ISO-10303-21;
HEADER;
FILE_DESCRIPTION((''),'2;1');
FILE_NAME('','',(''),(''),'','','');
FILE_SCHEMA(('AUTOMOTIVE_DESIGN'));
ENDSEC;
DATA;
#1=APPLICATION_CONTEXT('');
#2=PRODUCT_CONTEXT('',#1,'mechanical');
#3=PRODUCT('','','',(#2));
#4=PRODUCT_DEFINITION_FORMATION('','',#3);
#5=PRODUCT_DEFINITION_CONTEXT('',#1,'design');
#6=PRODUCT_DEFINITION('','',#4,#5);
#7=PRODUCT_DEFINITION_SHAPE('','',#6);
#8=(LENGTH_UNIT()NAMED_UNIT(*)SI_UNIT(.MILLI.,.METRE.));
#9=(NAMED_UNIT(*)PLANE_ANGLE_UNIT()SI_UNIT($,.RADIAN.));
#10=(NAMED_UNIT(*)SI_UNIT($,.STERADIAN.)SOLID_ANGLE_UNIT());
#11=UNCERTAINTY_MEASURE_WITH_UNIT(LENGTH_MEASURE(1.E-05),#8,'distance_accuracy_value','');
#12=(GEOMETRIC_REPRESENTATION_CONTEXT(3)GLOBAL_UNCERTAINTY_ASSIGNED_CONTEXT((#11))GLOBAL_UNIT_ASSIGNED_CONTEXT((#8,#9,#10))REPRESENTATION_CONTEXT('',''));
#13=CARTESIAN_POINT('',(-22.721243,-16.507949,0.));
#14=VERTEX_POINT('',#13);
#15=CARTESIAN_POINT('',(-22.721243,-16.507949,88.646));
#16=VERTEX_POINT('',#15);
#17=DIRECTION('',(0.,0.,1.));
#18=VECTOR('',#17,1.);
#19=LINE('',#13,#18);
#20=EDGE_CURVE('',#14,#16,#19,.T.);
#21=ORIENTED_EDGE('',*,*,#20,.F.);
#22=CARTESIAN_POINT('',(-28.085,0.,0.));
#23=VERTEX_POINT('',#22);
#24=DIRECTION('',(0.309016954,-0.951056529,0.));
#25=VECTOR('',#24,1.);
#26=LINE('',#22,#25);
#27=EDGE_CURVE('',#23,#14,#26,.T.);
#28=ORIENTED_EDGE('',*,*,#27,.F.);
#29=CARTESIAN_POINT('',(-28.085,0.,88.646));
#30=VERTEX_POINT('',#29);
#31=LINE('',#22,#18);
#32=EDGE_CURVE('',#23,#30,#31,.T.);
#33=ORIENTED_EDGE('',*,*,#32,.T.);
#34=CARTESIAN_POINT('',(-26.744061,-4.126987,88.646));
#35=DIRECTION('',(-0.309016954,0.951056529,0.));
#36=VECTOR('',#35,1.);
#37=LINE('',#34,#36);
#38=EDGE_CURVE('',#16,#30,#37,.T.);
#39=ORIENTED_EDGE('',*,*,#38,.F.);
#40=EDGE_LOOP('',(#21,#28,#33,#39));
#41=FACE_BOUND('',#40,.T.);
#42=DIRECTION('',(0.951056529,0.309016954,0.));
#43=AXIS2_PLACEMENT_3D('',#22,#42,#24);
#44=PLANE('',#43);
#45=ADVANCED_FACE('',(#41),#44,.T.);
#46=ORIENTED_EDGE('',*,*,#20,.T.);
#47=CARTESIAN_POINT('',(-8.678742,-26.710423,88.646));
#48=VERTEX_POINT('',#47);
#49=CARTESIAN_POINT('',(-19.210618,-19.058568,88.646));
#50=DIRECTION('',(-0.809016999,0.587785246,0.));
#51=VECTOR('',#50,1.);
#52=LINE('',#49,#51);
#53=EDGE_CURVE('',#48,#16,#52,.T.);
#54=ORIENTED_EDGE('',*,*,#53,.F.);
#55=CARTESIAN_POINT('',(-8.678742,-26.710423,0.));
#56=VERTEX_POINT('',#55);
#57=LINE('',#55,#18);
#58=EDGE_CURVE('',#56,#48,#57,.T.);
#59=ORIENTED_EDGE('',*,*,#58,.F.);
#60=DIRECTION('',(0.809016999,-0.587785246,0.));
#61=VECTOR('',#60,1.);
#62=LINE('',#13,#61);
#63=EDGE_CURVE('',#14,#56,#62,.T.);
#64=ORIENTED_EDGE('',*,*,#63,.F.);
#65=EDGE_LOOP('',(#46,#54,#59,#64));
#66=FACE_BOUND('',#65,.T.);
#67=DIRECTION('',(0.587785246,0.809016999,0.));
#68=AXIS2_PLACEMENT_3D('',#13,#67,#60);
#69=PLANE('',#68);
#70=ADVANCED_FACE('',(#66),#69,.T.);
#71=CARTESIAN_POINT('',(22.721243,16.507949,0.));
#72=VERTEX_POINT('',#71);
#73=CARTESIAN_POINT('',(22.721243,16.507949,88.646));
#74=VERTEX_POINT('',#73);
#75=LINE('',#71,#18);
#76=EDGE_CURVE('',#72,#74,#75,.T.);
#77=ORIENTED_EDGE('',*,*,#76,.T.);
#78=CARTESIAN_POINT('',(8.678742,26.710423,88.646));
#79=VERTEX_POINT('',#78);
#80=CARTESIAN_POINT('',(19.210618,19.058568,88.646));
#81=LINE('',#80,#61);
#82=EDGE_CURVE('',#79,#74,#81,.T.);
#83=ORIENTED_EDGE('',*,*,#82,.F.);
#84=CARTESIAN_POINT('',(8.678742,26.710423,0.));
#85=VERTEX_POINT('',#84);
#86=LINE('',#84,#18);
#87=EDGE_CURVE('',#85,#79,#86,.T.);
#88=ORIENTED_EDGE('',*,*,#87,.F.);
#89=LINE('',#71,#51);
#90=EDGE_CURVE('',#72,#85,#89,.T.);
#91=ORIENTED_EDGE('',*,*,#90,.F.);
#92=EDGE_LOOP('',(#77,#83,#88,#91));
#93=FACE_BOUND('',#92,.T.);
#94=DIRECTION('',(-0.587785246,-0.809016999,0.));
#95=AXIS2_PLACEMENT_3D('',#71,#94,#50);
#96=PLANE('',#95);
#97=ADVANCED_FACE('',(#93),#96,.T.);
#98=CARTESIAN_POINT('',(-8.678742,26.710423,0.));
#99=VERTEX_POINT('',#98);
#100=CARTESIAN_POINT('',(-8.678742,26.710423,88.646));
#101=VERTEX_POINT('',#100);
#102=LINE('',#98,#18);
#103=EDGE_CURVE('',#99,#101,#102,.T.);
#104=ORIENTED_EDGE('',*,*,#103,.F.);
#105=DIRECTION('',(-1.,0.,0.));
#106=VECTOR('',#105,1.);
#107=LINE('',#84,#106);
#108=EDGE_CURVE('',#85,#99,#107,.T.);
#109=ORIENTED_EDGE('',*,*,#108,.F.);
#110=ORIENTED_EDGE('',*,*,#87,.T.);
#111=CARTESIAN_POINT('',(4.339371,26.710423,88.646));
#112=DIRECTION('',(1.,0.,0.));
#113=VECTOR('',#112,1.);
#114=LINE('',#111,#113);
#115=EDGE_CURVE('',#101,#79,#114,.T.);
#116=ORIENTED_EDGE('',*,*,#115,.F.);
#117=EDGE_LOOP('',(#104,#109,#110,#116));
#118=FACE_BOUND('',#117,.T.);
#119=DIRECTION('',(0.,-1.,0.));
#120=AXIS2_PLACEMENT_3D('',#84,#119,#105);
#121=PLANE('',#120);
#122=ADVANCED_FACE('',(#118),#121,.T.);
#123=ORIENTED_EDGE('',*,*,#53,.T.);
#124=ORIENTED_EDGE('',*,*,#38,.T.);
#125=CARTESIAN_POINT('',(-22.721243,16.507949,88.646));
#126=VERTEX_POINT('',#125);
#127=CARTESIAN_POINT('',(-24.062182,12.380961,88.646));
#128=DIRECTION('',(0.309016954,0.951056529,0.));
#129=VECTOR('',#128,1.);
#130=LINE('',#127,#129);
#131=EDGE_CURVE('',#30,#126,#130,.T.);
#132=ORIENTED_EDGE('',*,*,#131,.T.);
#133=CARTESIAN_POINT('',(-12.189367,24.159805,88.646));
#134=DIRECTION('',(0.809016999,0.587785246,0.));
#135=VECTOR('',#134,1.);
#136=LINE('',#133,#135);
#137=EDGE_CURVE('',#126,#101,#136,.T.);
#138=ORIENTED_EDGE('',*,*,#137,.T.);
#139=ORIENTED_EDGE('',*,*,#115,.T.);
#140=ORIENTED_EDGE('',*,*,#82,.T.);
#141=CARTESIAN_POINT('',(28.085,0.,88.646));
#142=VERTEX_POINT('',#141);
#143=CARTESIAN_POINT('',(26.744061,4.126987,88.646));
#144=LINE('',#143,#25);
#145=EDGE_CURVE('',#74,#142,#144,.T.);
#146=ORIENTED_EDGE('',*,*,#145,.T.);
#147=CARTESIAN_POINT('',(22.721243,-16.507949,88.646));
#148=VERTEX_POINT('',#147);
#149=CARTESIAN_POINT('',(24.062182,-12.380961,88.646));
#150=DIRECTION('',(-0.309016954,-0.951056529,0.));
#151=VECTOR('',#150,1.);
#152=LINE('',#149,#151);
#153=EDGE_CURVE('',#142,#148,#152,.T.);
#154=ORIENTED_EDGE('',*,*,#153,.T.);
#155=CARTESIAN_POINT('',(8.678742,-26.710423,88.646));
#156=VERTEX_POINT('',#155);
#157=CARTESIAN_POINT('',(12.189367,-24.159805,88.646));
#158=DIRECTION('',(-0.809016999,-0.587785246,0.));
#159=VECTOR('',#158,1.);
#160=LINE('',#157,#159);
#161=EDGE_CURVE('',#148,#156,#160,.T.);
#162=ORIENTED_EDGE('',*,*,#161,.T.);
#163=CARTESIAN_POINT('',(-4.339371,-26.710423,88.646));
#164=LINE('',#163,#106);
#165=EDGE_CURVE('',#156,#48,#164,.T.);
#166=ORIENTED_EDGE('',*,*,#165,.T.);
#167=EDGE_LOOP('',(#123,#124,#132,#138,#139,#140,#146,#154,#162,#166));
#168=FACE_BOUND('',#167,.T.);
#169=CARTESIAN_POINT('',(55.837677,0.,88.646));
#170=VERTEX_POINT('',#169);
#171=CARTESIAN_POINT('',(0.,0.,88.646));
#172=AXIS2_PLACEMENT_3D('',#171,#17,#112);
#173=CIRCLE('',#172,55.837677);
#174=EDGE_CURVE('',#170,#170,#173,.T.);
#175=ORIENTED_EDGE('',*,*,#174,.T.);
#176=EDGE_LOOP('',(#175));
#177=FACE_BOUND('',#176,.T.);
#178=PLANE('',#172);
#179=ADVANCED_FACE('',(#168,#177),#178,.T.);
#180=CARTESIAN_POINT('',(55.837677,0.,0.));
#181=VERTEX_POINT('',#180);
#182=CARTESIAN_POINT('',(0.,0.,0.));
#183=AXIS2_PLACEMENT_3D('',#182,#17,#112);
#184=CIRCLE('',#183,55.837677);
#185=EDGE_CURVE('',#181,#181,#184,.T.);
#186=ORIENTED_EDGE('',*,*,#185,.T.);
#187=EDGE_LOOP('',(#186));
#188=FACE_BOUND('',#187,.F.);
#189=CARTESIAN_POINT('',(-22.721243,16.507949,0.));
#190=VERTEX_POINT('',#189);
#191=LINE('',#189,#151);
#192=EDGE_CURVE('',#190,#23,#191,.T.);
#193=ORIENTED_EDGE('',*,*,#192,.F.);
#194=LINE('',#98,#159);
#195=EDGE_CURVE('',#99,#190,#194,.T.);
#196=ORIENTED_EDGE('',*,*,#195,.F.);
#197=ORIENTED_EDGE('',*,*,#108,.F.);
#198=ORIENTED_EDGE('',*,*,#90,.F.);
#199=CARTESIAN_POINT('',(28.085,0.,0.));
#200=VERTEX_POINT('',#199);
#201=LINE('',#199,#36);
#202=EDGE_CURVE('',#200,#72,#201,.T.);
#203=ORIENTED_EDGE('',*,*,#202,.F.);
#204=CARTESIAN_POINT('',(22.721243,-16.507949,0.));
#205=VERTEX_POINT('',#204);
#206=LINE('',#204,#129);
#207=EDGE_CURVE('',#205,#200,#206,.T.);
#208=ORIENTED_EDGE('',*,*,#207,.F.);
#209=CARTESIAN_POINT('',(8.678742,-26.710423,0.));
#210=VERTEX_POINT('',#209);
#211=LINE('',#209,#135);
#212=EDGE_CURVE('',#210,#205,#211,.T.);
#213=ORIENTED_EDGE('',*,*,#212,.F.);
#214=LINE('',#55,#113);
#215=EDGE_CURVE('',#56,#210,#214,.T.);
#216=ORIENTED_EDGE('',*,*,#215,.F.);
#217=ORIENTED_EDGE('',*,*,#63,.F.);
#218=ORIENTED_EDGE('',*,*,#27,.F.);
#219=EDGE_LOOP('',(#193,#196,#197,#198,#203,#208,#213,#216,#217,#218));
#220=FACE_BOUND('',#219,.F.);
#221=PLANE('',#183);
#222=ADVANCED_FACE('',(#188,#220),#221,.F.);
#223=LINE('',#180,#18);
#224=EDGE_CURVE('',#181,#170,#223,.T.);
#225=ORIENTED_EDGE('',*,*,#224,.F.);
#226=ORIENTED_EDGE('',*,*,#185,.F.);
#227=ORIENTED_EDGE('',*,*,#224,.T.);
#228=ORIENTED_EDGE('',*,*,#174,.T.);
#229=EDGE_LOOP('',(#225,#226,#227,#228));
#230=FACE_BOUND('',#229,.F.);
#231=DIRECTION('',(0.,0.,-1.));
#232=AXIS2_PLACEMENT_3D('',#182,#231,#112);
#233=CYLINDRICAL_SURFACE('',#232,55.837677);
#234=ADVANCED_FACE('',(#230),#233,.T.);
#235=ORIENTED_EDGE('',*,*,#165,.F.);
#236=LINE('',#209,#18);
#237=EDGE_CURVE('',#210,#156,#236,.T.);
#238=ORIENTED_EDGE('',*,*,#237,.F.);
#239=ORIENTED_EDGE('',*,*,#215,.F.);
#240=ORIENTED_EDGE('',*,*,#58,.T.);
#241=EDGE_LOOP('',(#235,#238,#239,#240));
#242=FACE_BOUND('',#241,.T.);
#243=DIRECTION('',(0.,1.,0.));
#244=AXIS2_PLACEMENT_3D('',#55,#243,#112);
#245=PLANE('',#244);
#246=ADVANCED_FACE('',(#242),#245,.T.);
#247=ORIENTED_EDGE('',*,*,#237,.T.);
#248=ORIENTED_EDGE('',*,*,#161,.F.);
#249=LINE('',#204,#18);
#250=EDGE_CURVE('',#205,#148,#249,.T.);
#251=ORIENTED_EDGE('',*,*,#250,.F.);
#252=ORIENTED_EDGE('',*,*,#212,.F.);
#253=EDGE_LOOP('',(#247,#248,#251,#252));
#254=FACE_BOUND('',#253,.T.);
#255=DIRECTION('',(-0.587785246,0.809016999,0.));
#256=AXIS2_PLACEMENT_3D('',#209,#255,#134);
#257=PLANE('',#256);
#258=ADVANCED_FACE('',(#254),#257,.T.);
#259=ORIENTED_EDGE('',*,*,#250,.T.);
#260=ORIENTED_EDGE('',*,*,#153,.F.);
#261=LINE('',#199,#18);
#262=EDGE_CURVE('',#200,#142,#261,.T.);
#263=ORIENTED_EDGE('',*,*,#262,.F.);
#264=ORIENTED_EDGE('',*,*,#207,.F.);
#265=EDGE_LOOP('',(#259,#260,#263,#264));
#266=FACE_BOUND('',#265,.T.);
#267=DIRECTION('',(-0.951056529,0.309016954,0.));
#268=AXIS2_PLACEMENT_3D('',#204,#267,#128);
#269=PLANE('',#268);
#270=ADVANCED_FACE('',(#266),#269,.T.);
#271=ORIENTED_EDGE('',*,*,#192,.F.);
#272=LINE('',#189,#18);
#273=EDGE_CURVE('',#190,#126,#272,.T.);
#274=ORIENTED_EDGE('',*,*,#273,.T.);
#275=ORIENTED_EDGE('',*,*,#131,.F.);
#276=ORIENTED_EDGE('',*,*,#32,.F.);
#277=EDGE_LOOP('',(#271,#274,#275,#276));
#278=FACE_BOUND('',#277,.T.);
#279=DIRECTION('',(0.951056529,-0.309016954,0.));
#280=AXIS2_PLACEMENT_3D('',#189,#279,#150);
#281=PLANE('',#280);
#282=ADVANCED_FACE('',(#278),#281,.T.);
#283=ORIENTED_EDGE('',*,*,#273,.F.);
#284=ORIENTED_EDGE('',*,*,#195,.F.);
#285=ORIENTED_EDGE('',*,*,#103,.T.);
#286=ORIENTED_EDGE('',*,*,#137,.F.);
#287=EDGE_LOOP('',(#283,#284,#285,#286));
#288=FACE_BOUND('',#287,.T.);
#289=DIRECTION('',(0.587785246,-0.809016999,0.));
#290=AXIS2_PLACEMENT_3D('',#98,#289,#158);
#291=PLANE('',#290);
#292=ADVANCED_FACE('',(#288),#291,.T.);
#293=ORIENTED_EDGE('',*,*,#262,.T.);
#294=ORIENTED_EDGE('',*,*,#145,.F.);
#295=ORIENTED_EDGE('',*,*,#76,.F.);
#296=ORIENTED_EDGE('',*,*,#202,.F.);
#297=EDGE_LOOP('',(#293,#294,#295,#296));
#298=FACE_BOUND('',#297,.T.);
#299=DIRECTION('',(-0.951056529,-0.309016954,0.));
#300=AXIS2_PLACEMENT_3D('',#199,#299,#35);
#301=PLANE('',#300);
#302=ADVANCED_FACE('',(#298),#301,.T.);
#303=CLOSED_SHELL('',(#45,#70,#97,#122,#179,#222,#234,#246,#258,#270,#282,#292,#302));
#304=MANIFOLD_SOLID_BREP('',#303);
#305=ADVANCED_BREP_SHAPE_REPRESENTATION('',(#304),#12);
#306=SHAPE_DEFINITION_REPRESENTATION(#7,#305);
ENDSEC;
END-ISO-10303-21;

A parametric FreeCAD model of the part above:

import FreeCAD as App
import Part
import Sketcher
from FreeCAD import Vector
Q = App.Units.Quantity


def add_polygon(sketch, points):
    """Adds a closed chain of lines whose ends are joined by coincident constraints."""
    first, n = sketch.GeometryCount, len(points)
    for a, b in zip(points, points[1:] + points[:1]):
        sketch.addGeometry(Part.LineSegment(App.Vector(*a, 0), App.Vector(*b, 0)), False)
    for i in range(n):
        sketch.addConstraint(Sketcher.Constraint("Coincident", first + i, 2, first + (i + 1) % n, 1))

doc = App.newDocument("Part")
params = doc.addObject("Spreadsheet::Sheet", "Params")
for row, (alias, value) in enumerate([
    ("pad1_length", "3.49 in"),
], start=1):
    params.set(f"A{row}", alias)
    params.set(f"B{row}", "=" + value)
    params.setAlias(f"B{row}", alias)

body = doc.addObject("PartDesign::Body", "Body")

# Sketch on XY plane
sketch1 = body.newObject("Sketcher::SketchObject", "Sketch")
sketch1.AttachmentSupport = (doc.getObject("XY_Plane"), [""])
sketch1.MapMode = "FlatFace"
sketch1.addGeometry(Part.Circle(Vector(0, 0, 0), Vector(0, 0, 1), 56), False)
sketch1.addConstraint(Sketcher.Constraint("Coincident", 0, 3, -1, 1))
sketch1.addConstraint(Sketcher.Constraint("Diameter", 0, Q("111.675354 mm")))
pad1 = body.newObject("PartDesign::Pad", "Pad")
pad1.Profile = sketch1
pad1.setExpression("Length", "Params.pad1_length")

# Sketch on XY plane
sketch2 = body.newObject("Sketcher::SketchObject", "Sketch001")
sketch2.AttachmentSupport = (doc.getObject("XY_Plane"), [""])
sketch2.MapMode = "FlatFace"
add_polygon(sketch2, [(9, 27), (-9, 27), (-23, 17), (-28, 0), (-23, -17), (-9, -27), (9, -27), (23, -17), (28, 0), (23, 17)])  # lines 0-9
sketch2.addConstraint(Sketcher.Constraint("Horizontal", 0))
sketch2.addConstraint(Sketcher.Constraint("Horizontal", 5))
sketch2.addConstraint(Sketcher.Constraint("Symmetric", 0, 2, 5, 2, -1, 1))
sketch2.addConstraint(Sketcher.Constraint("Symmetric", 1, 2, 6, 2, -1, 1))
sketch2.addConstraint(Sketcher.Constraint("Symmetric", 2, 2, 7, 2, -1, 1))
sketch2.addConstraint(Sketcher.Constraint("Symmetric", 3, 2, 8, 2, -1, 1))
sketch2.addConstraint(Sketcher.Constraint("Symmetric", 3, 2, 6, 2, -2))
sketch2.addConstraint(Sketcher.Constraint("PointOnObject", 2, 2, -1))
sketch2.addConstraint(Sketcher.Constraint("Parallel", 4, 9))
sketch2.addConstraint(Sketcher.Constraint("Vertical", 0, 2, 4, 2))
sketch2.addConstraint(Sketcher.Constraint("Equal", 1, 2))
sketch2.addConstraint(Sketcher.Constraint("Angle", 1, Q("-144 deg")))
sketch2.addConstraint(Sketcher.Constraint("Angle", 2, Q("-107.999998 deg")))
sketch2.addConstraint(Sketcher.Constraint("DistanceX", 2, 2, -1, 1, Q("28.085 mm")))
sketch2.addConstraint(Sketcher.Constraint("DistanceX", 1, 2, 0, 2, Q("14.042501 mm")))
pocket1 = body.newObject("PartDesign::Pocket", "Pocket")
pocket1.Profile = sketch2
pocket1.Type = "ThroughAll"
pocket1.Reversed = True

doc.recompute()
